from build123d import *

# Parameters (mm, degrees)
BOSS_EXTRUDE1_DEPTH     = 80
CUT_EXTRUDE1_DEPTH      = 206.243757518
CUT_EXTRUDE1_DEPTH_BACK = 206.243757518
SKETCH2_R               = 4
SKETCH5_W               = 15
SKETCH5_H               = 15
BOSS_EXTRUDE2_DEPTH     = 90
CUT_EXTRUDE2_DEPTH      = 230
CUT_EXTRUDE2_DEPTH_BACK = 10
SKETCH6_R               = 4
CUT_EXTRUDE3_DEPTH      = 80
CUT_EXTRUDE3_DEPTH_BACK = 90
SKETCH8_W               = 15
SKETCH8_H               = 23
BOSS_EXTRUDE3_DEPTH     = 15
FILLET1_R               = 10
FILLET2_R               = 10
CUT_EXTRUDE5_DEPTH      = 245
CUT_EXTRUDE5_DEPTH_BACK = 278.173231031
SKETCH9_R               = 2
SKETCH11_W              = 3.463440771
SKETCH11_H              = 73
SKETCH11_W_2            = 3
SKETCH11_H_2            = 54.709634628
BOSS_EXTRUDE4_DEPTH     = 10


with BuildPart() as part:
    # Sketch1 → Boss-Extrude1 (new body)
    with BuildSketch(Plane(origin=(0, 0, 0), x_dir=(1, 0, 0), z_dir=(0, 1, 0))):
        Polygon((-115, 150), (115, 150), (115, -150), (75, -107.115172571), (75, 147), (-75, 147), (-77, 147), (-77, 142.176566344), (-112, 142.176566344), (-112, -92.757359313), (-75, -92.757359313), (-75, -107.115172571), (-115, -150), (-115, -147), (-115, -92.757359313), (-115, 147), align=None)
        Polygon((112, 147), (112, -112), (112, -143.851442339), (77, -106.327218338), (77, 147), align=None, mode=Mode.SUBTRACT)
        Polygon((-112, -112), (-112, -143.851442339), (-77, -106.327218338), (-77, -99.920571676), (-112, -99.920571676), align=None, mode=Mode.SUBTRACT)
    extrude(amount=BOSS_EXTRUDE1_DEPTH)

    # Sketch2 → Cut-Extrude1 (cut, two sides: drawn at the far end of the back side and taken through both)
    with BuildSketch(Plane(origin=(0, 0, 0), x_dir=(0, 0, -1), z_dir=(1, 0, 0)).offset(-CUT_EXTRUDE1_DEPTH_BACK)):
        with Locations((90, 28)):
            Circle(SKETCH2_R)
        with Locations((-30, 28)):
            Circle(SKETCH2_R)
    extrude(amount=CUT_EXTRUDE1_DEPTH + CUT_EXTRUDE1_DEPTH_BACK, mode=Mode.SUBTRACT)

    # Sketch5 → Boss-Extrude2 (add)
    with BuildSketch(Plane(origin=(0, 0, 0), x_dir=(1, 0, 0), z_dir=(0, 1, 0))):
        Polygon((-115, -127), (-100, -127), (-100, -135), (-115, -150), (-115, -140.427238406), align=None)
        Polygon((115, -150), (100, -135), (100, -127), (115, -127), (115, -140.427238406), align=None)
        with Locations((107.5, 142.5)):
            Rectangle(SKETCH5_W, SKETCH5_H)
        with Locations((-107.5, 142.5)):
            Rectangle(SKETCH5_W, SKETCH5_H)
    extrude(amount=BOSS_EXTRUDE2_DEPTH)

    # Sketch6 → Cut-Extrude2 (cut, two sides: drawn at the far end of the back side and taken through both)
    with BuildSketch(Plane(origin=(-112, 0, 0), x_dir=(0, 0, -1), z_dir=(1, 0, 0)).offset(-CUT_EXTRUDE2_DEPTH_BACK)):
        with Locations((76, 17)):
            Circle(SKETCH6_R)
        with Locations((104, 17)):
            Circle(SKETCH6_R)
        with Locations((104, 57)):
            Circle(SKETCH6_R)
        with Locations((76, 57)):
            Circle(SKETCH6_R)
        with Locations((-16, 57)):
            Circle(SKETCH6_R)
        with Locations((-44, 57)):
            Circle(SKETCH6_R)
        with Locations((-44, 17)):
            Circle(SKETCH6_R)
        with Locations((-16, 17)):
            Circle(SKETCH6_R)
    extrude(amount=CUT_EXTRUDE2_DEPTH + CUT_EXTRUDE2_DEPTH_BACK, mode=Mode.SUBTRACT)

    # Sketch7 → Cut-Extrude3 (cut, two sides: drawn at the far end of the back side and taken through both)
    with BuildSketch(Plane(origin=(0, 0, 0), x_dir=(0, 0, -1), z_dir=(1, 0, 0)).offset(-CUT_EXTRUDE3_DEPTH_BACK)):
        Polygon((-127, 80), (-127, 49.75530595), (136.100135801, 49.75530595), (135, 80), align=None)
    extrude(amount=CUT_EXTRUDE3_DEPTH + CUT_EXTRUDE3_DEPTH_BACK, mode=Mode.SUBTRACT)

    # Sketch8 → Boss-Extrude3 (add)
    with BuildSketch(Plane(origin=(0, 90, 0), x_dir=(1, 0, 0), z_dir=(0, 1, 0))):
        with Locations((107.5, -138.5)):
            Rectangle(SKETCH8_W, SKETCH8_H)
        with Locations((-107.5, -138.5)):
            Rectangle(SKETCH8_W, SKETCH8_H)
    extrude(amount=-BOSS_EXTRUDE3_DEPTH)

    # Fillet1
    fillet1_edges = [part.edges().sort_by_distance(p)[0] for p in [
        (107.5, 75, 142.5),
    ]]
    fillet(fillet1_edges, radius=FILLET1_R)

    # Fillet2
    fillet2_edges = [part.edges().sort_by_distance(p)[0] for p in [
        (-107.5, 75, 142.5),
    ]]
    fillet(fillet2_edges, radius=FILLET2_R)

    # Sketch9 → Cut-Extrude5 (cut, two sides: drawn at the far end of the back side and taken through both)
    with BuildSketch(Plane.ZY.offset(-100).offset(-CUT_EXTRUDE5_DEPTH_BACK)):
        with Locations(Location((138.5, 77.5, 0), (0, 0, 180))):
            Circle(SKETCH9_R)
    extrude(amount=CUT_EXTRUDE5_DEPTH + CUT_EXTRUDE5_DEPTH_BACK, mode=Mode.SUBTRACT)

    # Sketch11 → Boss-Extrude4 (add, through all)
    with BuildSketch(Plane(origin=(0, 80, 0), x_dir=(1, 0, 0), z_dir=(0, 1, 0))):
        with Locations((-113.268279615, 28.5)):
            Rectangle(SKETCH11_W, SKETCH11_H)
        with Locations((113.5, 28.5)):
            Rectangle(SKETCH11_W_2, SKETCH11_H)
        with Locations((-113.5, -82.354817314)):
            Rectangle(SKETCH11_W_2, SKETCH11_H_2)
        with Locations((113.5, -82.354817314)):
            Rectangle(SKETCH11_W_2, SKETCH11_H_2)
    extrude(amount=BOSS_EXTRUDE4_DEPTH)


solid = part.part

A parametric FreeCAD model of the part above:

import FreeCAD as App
import Part
import Sketcher
Q = App.Units.Quantity


def edges_at(feature, points):
    """Names of the edges that pass closest to the given points."""
    edges = feature.Shape.Edges
    near = lambda p: min(range(len(edges)), key=lambda i: edges[i].distToShape(Part.Vertex(*p))[0])
    return sorted({f"Edge{near(p) + 1}" for p in points})

doc = App.newDocument("Part")
body = doc.addObject("PartDesign::Body", "Body")

sketch1 = body.newObject("Sketcher::SketchObject", "Sketch")
sketch1.AttachmentSupport = (doc.getObject("XZ_Plane"), [""])
sketch1.MapMode = "FlatFace"
sketch1.addGeometry([
    Part.LineSegment(App.Vector(115, -150, 0), App.Vector(-115, -150, 0)),
    Part.LineSegment(App.Vector(-115, -150, 0), App.Vector(-115, 150, 0)),
    Part.LineSegment(App.Vector(-115, 150, 0), App.Vector(-75, 107.1, 0)),
    Part.LineSegment(App.Vector(-75, 107.1, 0), App.Vector(-75, 92.8, 0)),
    Part.LineSegment(App.Vector(-75, 92.8, 0), App.Vector(-112, 92.8, 0)),
    Part.LineSegment(App.Vector(-112, 92.8, 0), App.Vector(-112, -142.2, 0)),
    Part.LineSegment(App.Vector(-112, -142.2, 0), App.Vector(-77, -142.2, 0)),
    Part.LineSegment(App.Vector(-77, -142.2, 0), App.Vector(-77, -147, 0)),
    Part.LineSegment(App.Vector(-77, -147, 0), App.Vector(75, -147, 0)),
    Part.LineSegment(App.Vector(75, -147, 0), App.Vector(75, 107.1, 0)),
    Part.LineSegment(App.Vector(75, 107.1, 0), App.Vector(115, 150, 0)),
    Part.LineSegment(App.Vector(115, 150, 0), App.Vector(115, -150, 0)),
    Part.LineSegment(App.Vector(-112, 99.9, 0), App.Vector(-77, 99.9, 0)),
    Part.LineSegment(App.Vector(-77, 99.9, 0), App.Vector(-77, 106.3, 0)),
    Part.LineSegment(App.Vector(-77, 106.3, 0), App.Vector(-112, 143.9, 0)),
    Part.LineSegment(App.Vector(-112, 143.9, 0), App.Vector(-112, 99.9, 0)),
    Part.LineSegment(App.Vector(112, -147, 0), App.Vector(112, 143.9, 0)),
    Part.LineSegment(App.Vector(112, 143.9, 0), App.Vector(77, 106.3, 0)),
    Part.LineSegment(App.Vector(77, 106.3, 0), App.Vector(77, -147, 0)),
    Part.LineSegment(App.Vector(77, -147, 0), App.Vector(112, -147, 0)),
], False)
sketch1.addConstraint([
    Sketcher.Constraint("Coincident", 0, 2, 1, 1),
    Sketcher.Constraint("Coincident", 1, 2, 2, 1),
    Sketcher.Constraint("Coincident", 2, 2, 3, 1),
    Sketcher.Constraint("Coincident", 3, 2, 4, 1),
    Sketcher.Constraint("Coincident", 4, 2, 5, 1),
    Sketcher.Constraint("Coincident", 5, 2, 6, 1),
    Sketcher.Constraint("Coincident", 6, 2, 7, 1),
    Sketcher.Constraint("Coincident", 7, 2, 8, 1),
    Sketcher.Constraint("Coincident", 8, 2, 9, 1),
    Sketcher.Constraint("Coincident", 9, 2, 10, 1),
    Sketcher.Constraint("Coincident", 10, 2, 11, 1),
    Sketcher.Constraint("Coincident", 11, 2, 0, 1),
    Sketcher.Constraint("Coincident", 12, 2, 13, 1),
    Sketcher.Constraint("Coincident", 13, 2, 14, 1),
    Sketcher.Constraint("Coincident", 14, 2, 15, 1),
    Sketcher.Constraint("Coincident", 15, 2, 12, 1),
    Sketcher.Constraint("Coincident", 16, 2, 17, 1),
    Sketcher.Constraint("Coincident", 17, 2, 18, 1),
    Sketcher.Constraint("Coincident", 18, 2, 19, 1),
    Sketcher.Constraint("Coincident", 19, 2, 16, 1),
    Sketcher.Constraint("Horizontal", 0),
    Sketcher.Constraint("Vertical", 1),
    Sketcher.Constraint("Vertical", 3),
    Sketcher.Constraint("Horizontal", 4),
    Sketcher.Constraint("Vertical", 5),
    Sketcher.Constraint("Horizontal", 6),
    Sketcher.Constraint("Vertical", 7),
    Sketcher.Constraint("Horizontal", 8),
    Sketcher.Constraint("Vertical", 9),
    Sketcher.Constraint("Vertical", 11),
    Sketcher.Constraint("Horizontal", 12),
    Sketcher.Constraint("Vertical", 13),
    Sketcher.Constraint("Vertical", 15),
    Sketcher.Constraint("Vertical", 16),
    Sketcher.Constraint("Vertical", 18),
    Sketcher.Constraint("Horizontal", 19),
    Sketcher.Constraint("Symmetric", 0, 2, 10, 2, -1, 1),
    Sketcher.Constraint("Symmetric", 2, 2, 9, 2, -2),
    Sketcher.Constraint("Symmetric", 14, 2, 16, 2, -2),
    Sketcher.Constraint("Symmetric", 13, 2, 17, 2, -2),
    Sketcher.Constraint("Symmetric", 7, 2, 18, 2, -2),
    Sketcher.Constraint("Parallel", 2, 14),
    Sketcher.Constraint("Parallel", 10, 17),
    Sketcher.Constraint("Vertical", 5, 2, 14, 2),
    Sketcher.Constraint("DistanceX", 0, 2, 0, 1, Q("230 mm")),
    Sketcher.Constraint("DistanceX", 4, 2, 4, 1, Q("37 mm")),
    Sketcher.Constraint("DistanceX", 6, 1, 6, 2, Q("35 mm")),
    Sketcher.Constraint("DistanceX", 8, 1, 8, 2, Q("152 mm")),
    Sketcher.Constraint("DistanceY", 1, 1, 1, 2, Q("300 mm")),
    Sketcher.Constraint("DistanceY", 7, 2, -1, 1, Q("147 mm")),
    Sketcher.Constraint("DistanceY", 15, 2, 15, 1, Q("43.930871 mm")),
    Sketcher.Constraint("DistanceY", 18, 2, 18, 1, Q("253.327218 mm")),
    Sketcher.Constraint("DistanceY", 12, 2, 2, 2, Q("7.194601 mm")),
    Sketcher.Constraint("DistanceY", 3, 2, 3, 1, Q("14.357813 mm")),
    Sketcher.Constraint("DistanceY", 5, 2, 5, 1, Q("234.933926 mm")),
])
pad1 = body.newObject("PartDesign::Pad", "Pad")
pad1.Profile = sketch1
pad1.Length = 80
pad1.Reversed = True

sketch2 = body.newObject("Sketcher::SketchObject", "Sketch001")
sketch2.AttachmentSupport = (doc.getObject("YZ_Plane"), [""])
sketch2.MapMode = "FlatFace"
sketch2.addGeometry([
    Part.Circle(App.Vector(28, -90, 0), App.Vector(0, 0, 1), 4),
    Part.Circle(App.Vector(28, 30, 0), App.Vector(0, 0, 1), 4),
], False)
sketch2.addConstraint([
    Sketcher.Constraint("Equal", 0, 1),
    Sketcher.Constraint("Vertical", 0, 3, 1, 3),
    Sketcher.Constraint("Diameter", 0, Q("8 mm")),
    Sketcher.Constraint("DistanceX", -1, 1, 0, 3, Q("28 mm")),
    Sketcher.Constraint("DistanceY", 0, 3, -1, 1, Q("90 mm")),
    Sketcher.Constraint("DistanceY", -1, 1, 1, 3, Q("30 mm")),
])
pocket1 = body.newObject("PartDesign::Pocket", "Pocket")
pocket1.Profile = sketch2
pocket1.Type = "ThroughAll"
pocket1.Midplane = True

sketch3 = body.newObject("Sketcher::SketchObject", "Sketch002")
sketch3.AttachmentSupport = (doc.getObject("XZ_Plane"), [""])
sketch3.MapMode = "FlatFace"
sketch3.addGeometry([
    Part.LineSegment(App.Vector(-100, 127, 0), App.Vector(-115, 127, 0)),
    Part.LineSegment(App.Vector(-115, 127, 0), App.Vector(-115, 150, 0)),
    Part.LineSegment(App.Vector(-115, 150, 0), App.Vector(-100, 135, 0)),
    Part.LineSegment(App.Vector(-100, 135, 0), App.Vector(-100, 127, 0)),
    Part.LineSegment(App.Vector(100, 135, 0), App.Vector(115, 150, 0)),
    Part.LineSegment(App.Vector(115, 150, 0), App.Vector(115, 127, 0)),
    Part.LineSegment(App.Vector(115, 127, 0), App.Vector(100, 127, 0)),
    Part.LineSegment(App.Vector(100, 127, 0), App.Vector(100, 135, 0)),
    Part.LineSegment(App.Vector(100, -150, 0), App.Vector(100, -135, 0)),
    Part.LineSegment(App.Vector(100, -135, 0), App.Vector(115, -135, 0)),
    Part.LineSegment(App.Vector(115, -135, 0), App.Vector(115, -150, 0)),
    Part.LineSegment(App.Vector(115, -150, 0), App.Vector(100, -150, 0)),
    Part.LineSegment(App.Vector(-115, -150, 0), App.Vector(-115, -135, 0)),
    Part.LineSegment(App.Vector(-115, -135, 0), App.Vector(-100, -135, 0)),
    Part.LineSegment(App.Vector(-100, -135, 0), App.Vector(-100, -150, 0)),
    Part.LineSegment(App.Vector(-100, -150, 0), App.Vector(-115, -150, 0)),
], False)
sketch3.addConstraint([
    Sketcher.Constraint("Coincident", 0, 2, 1, 1),
    Sketcher.Constraint("Coincident", 1, 2, 2, 1),
    Sketcher.Constraint("Coincident", 2, 2, 3, 1),
    Sketcher.Constraint("Coincident", 3, 2, 0, 1),
    Sketcher.Constraint("Coincident", 4, 2, 5, 1),
    Sketcher.Constraint("Coincident", 5, 2, 6, 1),
    Sketcher.Constraint("Coincident", 6, 2, 7, 1),
    Sketcher.Constraint("Coincident", 7, 2, 4, 1),
    Sketcher.Constraint("Coincident", 8, 2, 9, 1),
    Sketcher.Constraint("Coincident", 9, 2, 10, 1),
    Sketcher.Constraint("Coincident", 10, 2, 11, 1),
    Sketcher.Constraint("Coincident", 11, 2, 8, 1),
    Sketcher.Constraint("Coincident", 12, 2, 13, 1),
    Sketcher.Constraint("Coincident", 13, 2, 14, 1),
    Sketcher.Constraint("Coincident", 14, 2, 15, 1),
    Sketcher.Constraint("Coincident", 15, 2, 12, 1),
    Sketcher.Constraint("Horizontal", 0),
    Sketcher.Constraint("Vertical", 1),
    Sketcher.Constraint("Vertical", 3),
    Sketcher.Constraint("Vertical", 5),
    Sketcher.Constraint("Horizontal", 6),
    Sketcher.Constraint("Vertical", 7),
    Sketcher.Constraint("Vertical", 8),
    Sketcher.Constraint("Horizontal", 9),
    Sketcher.Constraint("Vertical", 10),
    Sketcher.Constraint("Horizontal", 11),
    Sketcher.Constraint("Vertical", 12),
    Sketcher.Constraint("Horizontal", 13),
    Sketcher.Constraint("Vertical", 14),
    Sketcher.Constraint("Horizontal", 15),
    Sketcher.Constraint("Symmetric", 2, 2, 8, 2, -1, 1),
    Sketcher.Constraint("Symmetric", 1, 2, 10, 2, -1, 1),
    Sketcher.Constraint("Symmetric", 7, 2, 13, 2, -1, 1),
    Sketcher.Constraint("Symmetric", 4, 2, 15, 2, -1, 1),
    Sketcher.Constraint("Symmetric", 1, 2, 4, 2, -2),
    Sketcher.Constraint("Symmetric", 3, 2, 6, 2, -2),
    Sketcher.Constraint("Perpendicular", 2, 4),
    Sketcher.Constraint("Horizontal", 2, 2, 7, 2),
    Sketcher.Constraint("DistanceX", 0, 2, 0, 1, Q("15 mm")),
    Sketcher.Constraint("DistanceY", 1, 1, 1, 2, Q("23 mm")),
    Sketcher.Constraint("DistanceX", 0, 2, -1, 1, Q("115 mm")),
    Sketcher.Constraint("DistanceY", -1, 1, 0, 2, Q("127 mm")),
])
pad2 = body.newObject("PartDesign::Pad", "Pad001")
pad2.Profile = sketch3
pad2.Length = 90
pad2.Reversed = True

sketch4 = body.newObject("Sketcher::SketchObject", "Sketch003")
sketch4.AttachmentSupport = (doc.getObject("YZ_Plane"), [""])
sketch4.MapMode = "FlatFace"
sketch4.AttachmentOffset = App.Placement(App.Vector(0, 0, -112), App.Rotation())
sketch4.addGeometry([
    Part.Circle(App.Vector(17, -76, 0), App.Vector(0, 0, 1), 4),
    Part.Circle(App.Vector(17, -104, 0), App.Vector(0, 0, 1), 4),
    Part.Circle(App.Vector(57, -104, 0), App.Vector(0, 0, 1), 4),
    Part.Circle(App.Vector(57, -76, 0), App.Vector(0, 0, 1), 4),
    Part.Circle(App.Vector(57, 16, 0), App.Vector(0, 0, 1), 4),
    Part.Circle(App.Vector(57, 44, 0), App.Vector(0, 0, 1), 4),
    Part.Circle(App.Vector(17, 44, 0), App.Vector(0, 0, 1), 4),
    Part.Circle(App.Vector(17, 16, 0), App.Vector(0, 0, 1), 4),
], False)
sketch4.addConstraint([
    Sketcher.Constraint("Equal", 0, 1),
    Sketcher.Constraint("Equal", 1, 2),
    Sketcher.Constraint("Equal", 2, 3),
    Sketcher.Constraint("Equal", 3, 4),
    Sketcher.Constraint("Equal", 4, 5),
    Sketcher.Constraint("Equal", 5, 6),
    Sketcher.Constraint("Equal", 6, 7),
    Sketcher.Constraint("Horizontal", 1, 3, 2, 3),
    Sketcher.Constraint("Horizontal", 0, 3, 3, 3),
    Sketcher.Constraint("Horizontal", 5, 3, 6, 3),
    Sketcher.Constraint("Horizontal", 4, 3, 7, 3),
    Sketcher.Constraint("Vertical", 0, 3, 1, 3),
    Sketcher.Constraint("Vertical", 2, 3, 3, 3),
    Sketcher.Constraint("Vertical", 3, 3, 4, 3),
    Sketcher.Constraint("Vertical", 4, 3, 5, 3),
    Sketcher.Constraint("Vertical", 1, 3, 6, 3),
    Sketcher.Constraint("Vertical", 6, 3, 7, 3),
    Sketcher.Constraint("Diameter", 0, Q("8 mm")),
    Sketcher.Constraint("DistanceX", -1, 1, 0, 3, Q("17 mm")),
    Sketcher.Constraint("DistanceY", 0, 3, -1, 1, Q("76 mm")),
    Sketcher.Constraint("DistanceY", 1, 3, -1, 1, Q("104 mm")),
    Sketcher.Constraint("DistanceX", -1, 1, 2, 3, Q("57 mm")),
    Sketcher.Constraint("DistanceY", -1, 1, 4, 3, Q("16 mm")),
    Sketcher.Constraint("DistanceY", -1, 1, 5, 3, Q("44 mm")),
])
pocket2 = body.newObject("PartDesign::Pocket", "Pocket001")
pocket2.Profile = sketch4
pocket2.Type = "ThroughAll"
pocket2.Midplane = True

sketch5 = body.newObject("Sketcher::SketchObject", "Sketch004")
sketch5.AttachmentSupport = (doc.getObject("YZ_Plane"), [""])
sketch5.MapMode = "FlatFace"
sketch5.addGeometry([
    Part.LineSegment(App.Vector(80, 127, 0), App.Vector(50, 127, 0)),
    Part.LineSegment(App.Vector(50, 127, 0), App.Vector(50, -136, 0)),
    Part.LineSegment(App.Vector(50, -136, 0), App.Vector(80, -135, 0)),
    Part.LineSegment(App.Vector(80, -135, 0), App.Vector(80, 127, 0)),
], False)
sketch5.addConstraint([
    Sketcher.Constraint("Coincident", 0, 2, 1, 1),
    Sketcher.Constraint("Coincident", 1, 2, 2, 1),
    Sketcher.Constraint("Coincident", 2, 2, 3, 1),
    Sketcher.Constraint("Coincident", 3, 2, 0, 1),
    Sketcher.Constraint("Horizontal", 0),
    Sketcher.Constraint("Vertical", 1),
    Sketcher.Constraint("Vertical", 3),
    Sketcher.Constraint("DistanceY", 3, 1, 3, 2, Q("262 mm")),
    Sketcher.Constraint("DistanceY", -1, 1, 0, 2, Q("127 mm")),
    Sketcher.Constraint("DistanceX", -1, 1, 2, 2, Q("80 mm")),
    Sketcher.Constraint("DistanceX", 0, 2, 0, 1, Q("30.244694 mm")),
    Sketcher.Constraint("DistanceY", 1, 2, 1, 1, Q("263.100136 mm")),
])
pocket3 = body.newObject("PartDesign::Pocket", "Pocket002")
pocket3.Profile = sketch5
pocket3.Type = "TwoLengths"
pocket3.Length = 80
pocket3.Length2 = 90
pocket3.Reversed = True

sketch6 = body.newObject("Sketcher::SketchObject", "Sketch005")
sketch6.AttachmentSupport = (doc.getObject("XZ_Plane"), [""])
sketch6.MapMode = "FlatFace"
sketch6.AttachmentOffset = App.Placement(App.Vector(0, 0, -90), App.Rotation())
sketch6.addGeometry([
    Part.LineSegment(App.Vector(100, 127, 0), App.Vector(100, 150, 0)),
    Part.LineSegment(App.Vector(100, 150, 0), App.Vector(115, 150, 0)),
    Part.LineSegment(App.Vector(115, 150, 0), App.Vector(115, 127, 0)),
    Part.LineSegment(App.Vector(115, 127, 0), App.Vector(100, 127, 0)),
    Part.LineSegment(App.Vector(-115, 127, 0), App.Vector(-115, 150, 0)),
    Part.LineSegment(App.Vector(-115, 150, 0), App.Vector(-100, 150, 0)),
    Part.LineSegment(App.Vector(-100, 150, 0), App.Vector(-100, 127, 0)),
    Part.LineSegment(App.Vector(-100, 127, 0), App.Vector(-115, 127, 0)),
], False)
sketch6.addConstraint([
    Sketcher.Constraint("Coincident", 0, 2, 1, 1),
    Sketcher.Constraint("Coincident", 1, 2, 2, 1),
    Sketcher.Constraint("Coincident", 2, 2, 3, 1),
    Sketcher.Constraint("Coincident", 3, 2, 0, 1),
    Sketcher.Constraint("Coincident", 4, 2, 5, 1),
    Sketcher.Constraint("Coincident", 5, 2, 6, 1),
    Sketcher.Constraint("Coincident", 6, 2, 7, 1),
    Sketcher.Constraint("Coincident", 7, 2, 4, 1),
    Sketcher.Constraint("Vertical", 0),
    Sketcher.Constraint("Horizontal", 1),
    Sketcher.Constraint("Vertical", 2),
    Sketcher.Constraint("Horizontal", 3),
    Sketcher.Constraint("Vertical", 4),
    Sketcher.Constraint("Horizontal", 5),
    Sketcher.Constraint("Vertical", 6),
    Sketcher.Constraint("Horizontal", 7),
    Sketcher.Constraint("Symmetric", 1, 2, 4, 2, -2),
    Sketcher.Constraint("Symmetric", 3, 2, 6, 2, -2),
    Sketcher.Constraint("DistanceX", 1, 1, 1, 2, Q("15 mm")),
    Sketcher.Constraint("DistanceY", 0, 1, 0, 2, Q("23 mm")),
    Sketcher.Constraint("DistanceX", -1, 1, 0, 2, Q("100 mm")),
    Sketcher.Constraint("DistanceY", -1, 1, 0, 2, Q("150 mm")),
])
pad3 = body.newObject("PartDesign::Pad", "Pad002")
pad3.Profile = sketch6
pad3.Length = 15
doc.recompute()

fillet = body.newObject("PartDesign::Fillet", "Fillet")
fillet.Base = (pad3, edges_at(pad3, [(107.5, 75, 142.5)]))
fillet.Radius = 10
doc.recompute()

fillet2 = body.newObject("PartDesign::Fillet", "Fillet001")
fillet2.Base = (fillet, edges_at(fillet, [(-107.5, 75, 142.5)]))
fillet2.Radius = 10

sketch7 = body.newObject("Sketcher::SketchObject", "Sketch006")
sketch7.AttachmentSupport = (doc.getObject("YZ_Plane"), [""])
sketch7.MapMode = "FlatFace"
sketch7.AttachmentOffset = App.Placement(App.Vector(0, 0, 100), App.Rotation())
sketch7.addGeometry(Part.Circle(App.Vector(77.5, 138.5, 0), App.Vector(0, 0, 1), 2), False)
sketch7.addConstraint([
    Sketcher.Constraint("Diameter", 0, Q("4 mm")),
    Sketcher.Constraint("DistanceX", -1, 1, 0, 3, Q("77.5 mm")),
    Sketcher.Constraint("DistanceY", -1, 1, 0, 3, Q("138.5 mm")),
])
pocket4 = body.newObject("PartDesign::Pocket", "Pocket003")
pocket4.Profile = sketch7
pocket4.Type = "ThroughAll"
pocket4.Midplane = True

sketch8 = body.newObject("Sketcher::SketchObject", "Sketch007")
sketch8.AttachmentSupport = (doc.getObject("XZ_Plane"), [""])
sketch8.MapMode = "FlatFace"
sketch8.AttachmentOffset = App.Placement(App.Vector(0, 0, -80), App.Rotation())
sketch8.addGeometry([
    Part.LineSegment(App.Vector(-115, -65, 0), App.Vector(-115, 8, 0)),
    Part.LineSegment(App.Vector(-115, 8, 0), App.Vector(-111.5, 8, 0)),
    Part.LineSegment(App.Vector(-111.5, 8, 0), App.Vector(-111.5, -65, 0)),
    Part.LineSegment(App.Vector(-111.5, -65, 0), App.Vector(-115, -65, 0)),
    Part.LineSegment(App.Vector(112, -65, 0), App.Vector(112, 8, 0)),
    Part.LineSegment(App.Vector(112, 8, 0), App.Vector(115, 8, 0)),
    Part.LineSegment(App.Vector(115, 8, 0), App.Vector(115, -65, 0)),
    Part.LineSegment(App.Vector(115, -65, 0), App.Vector(112, -65, 0)),
    Part.LineSegment(App.Vector(-115, 55, 0), App.Vector(-115, 109.7, 0)),
    Part.LineSegment(App.Vector(-115, 109.7, 0), App.Vector(-112, 109.7, 0)),
    Part.LineSegment(App.Vector(-112, 109.7, 0), App.Vector(-112, 55, 0)),
    Part.LineSegment(App.Vector(-112, 55, 0), App.Vector(-115, 55, 0)),
    Part.LineSegment(App.Vector(112, 55, 0), App.Vector(112, 109.7, 0)),
    Part.LineSegment(App.Vector(112, 109.7, 0), App.Vector(115, 109.7, 0)),
    Part.LineSegment(App.Vector(115, 109.7, 0), App.Vector(115, 55, 0)),
    Part.LineSegment(App.Vector(115, 55, 0), App.Vector(112, 55, 0)),
], False)
sketch8.addConstraint([
    Sketcher.Constraint("Coincident", 0, 2, 1, 1),
    Sketcher.Constraint("Coincident", 1, 2, 2, 1),
    Sketcher.Constraint("Coincident", 2, 2, 3, 1),
    Sketcher.Constraint("Coincident", 3, 2, 0, 1),
    Sketcher.Constraint("Coincident", 4, 2, 5, 1),
    Sketcher.Constraint("Coincident", 5, 2, 6, 1),
    Sketcher.Constraint("Coincident", 6, 2, 7, 1),
    Sketcher.Constraint("Coincident", 7, 2, 4, 1),
    Sketcher.Constraint("Coincident", 8, 2, 9, 1),
    Sketcher.Constraint("Coincident", 9, 2, 10, 1),
    Sketcher.Constraint("Coincident", 10, 2, 11, 1),
    Sketcher.Constraint("Coincident", 11, 2, 8, 1),
    Sketcher.Constraint("Coincident", 12, 2, 13, 1),
    Sketcher.Constraint("Coincident", 13, 2, 14, 1),
    Sketcher.Constraint("Coincident", 14, 2, 15, 1),
    Sketcher.Constraint("Coincident", 15, 2, 12, 1),
    Sketcher.Constraint("Vertical", 0),
    Sketcher.Constraint("Horizontal", 1),
    Sketcher.Constraint("Vertical", 2),
    Sketcher.Constraint("Horizontal", 3),
    Sketcher.Constraint("Vertical", 4),
    Sketcher.Constraint("Horizontal", 5),
    Sketcher.Constraint("Vertical", 6),
    Sketcher.Constraint("Horizontal", 7),
    Sketcher.Constraint("Vertical", 8),
    Sketcher.Constraint("Horizontal", 9),
    Sketcher.Constraint("Vertical", 10),
    Sketcher.Constraint("Horizontal", 11),
    Sketcher.Constraint("Vertical", 12),
    Sketcher.Constraint("Horizontal", 13),
    Sketcher.Constraint("Vertical", 14),
    Sketcher.Constraint("Horizontal", 15),
    Sketcher.Constraint("Symmetric", 0, 2, 5, 2, -2),
    Sketcher.Constraint("Symmetric", 9, 2, 12, 2, -2),
    Sketcher.Constraint("Symmetric", 11, 2, 14, 2, -2),
    Sketcher.Constraint("Horizontal", 3, 2, 6, 2),
    Sketcher.Constraint("Vertical", 3, 2, 8, 2),
    Sketcher.Constraint("Vertical", 7, 2, 12, 2),
    Sketcher.Constraint("DistanceX", 5, 1, 5, 2, Q("3 mm")),
    Sketcher.Constraint("DistanceY", 0, 1, 0, 2, Q("73 mm")),
    Sketcher.Constraint("DistanceX", 0, 2, -1, 1, Q("115 mm")),
    Sketcher.Constraint("DistanceY", -1, 1, 0, 2, Q("8 mm")),
    Sketcher.Constraint("DistanceY", -1, 1, 10, 2, Q("55 mm")),
    Sketcher.Constraint("DistanceX", 1, 1, 1, 2, Q("3.463441 mm")),
    Sketcher.Constraint("DistanceY", 8, 1, 8, 2, Q("54.709635 mm")),
])
pad4 = body.newObject("PartDesign::Pad", "Pad003")
pad4.Profile = sketch8
pad4.Length = 10
pad4.Reversed = True

doc.recompute()
